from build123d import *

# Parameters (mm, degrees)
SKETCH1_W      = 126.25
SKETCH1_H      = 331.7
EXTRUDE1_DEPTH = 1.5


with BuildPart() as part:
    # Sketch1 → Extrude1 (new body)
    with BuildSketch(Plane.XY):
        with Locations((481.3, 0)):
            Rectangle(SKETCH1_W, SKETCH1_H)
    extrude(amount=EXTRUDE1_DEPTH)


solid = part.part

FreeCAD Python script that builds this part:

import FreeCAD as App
import Part
import Sketcher

doc = App.newDocument("Part")
body = doc.addObject("PartDesign::Body", "Body")

# Sketch on XY plane
sketch1 = body.newObject("Sketcher::SketchObject", "Sketch")
sketch1.AttachmentSupport = (doc.getObject("XY_Plane"), [""])
sketch1.MapMode = "FlatFace"
sketch1.addGeometry(Part.LineSegment(App.Vector(418.175, 165.85, 0), App.Vector(418.175, -165.85, 0)), False)
sketch1.addGeometry(Part.LineSegment(App.Vector(418.175, -165.85, 0), App.Vector(544.425, -165.85, 0)), False)
sketch1.addGeometry(Part.LineSegment(App.Vector(544.425, -165.85, 0), App.Vector(544.425, 165.85, 0)), False)
sketch1.addGeometry(Part.LineSegment(App.Vector(544.425, 165.85, 0), App.Vector(418.175, 165.85, 0)), False)
sketch1.addConstraint(Sketcher.Constraint("Coincident", 0, 2, 1, 1))
sketch1.addConstraint(Sketcher.Constraint("Coincident", 1, 2, 2, 1))
sketch1.addConstraint(Sketcher.Constraint("Coincident", 2, 2, 3, 1))
sketch1.addConstraint(Sketcher.Constraint("Coincident", 3, 2, 0, 1))
sketch1.addConstraint(Sketcher.Constraint("Vertical", 0))
sketch1.addConstraint(Sketcher.Constraint("Horizontal", 1))
sketch1.addConstraint(Sketcher.Constraint("Vertical", 2))
sketch1.addConstraint(Sketcher.Constraint("Horizontal", 3))
sketch1.addConstraint(Sketcher.Constraint("DistanceY", 0, 2, 0, 1, 331.7))
sketch1.addConstraint(Sketcher.Constraint("DistanceX", 1, 1, 1, 2, 126.25))
sketch1.addConstraint(Sketcher.Constraint("DistanceY", 0, 2, -1, 1, 165.85))
sketch1.addConstraint(Sketcher.Constraint("DistanceX", -1, 1, 0, 2, 418.175))
pad1 = body.newObject("PartDesign::Pad", "Pad")
pad1.Profile = sketch1
pad1.Length = 1.5

doc.recompute()
